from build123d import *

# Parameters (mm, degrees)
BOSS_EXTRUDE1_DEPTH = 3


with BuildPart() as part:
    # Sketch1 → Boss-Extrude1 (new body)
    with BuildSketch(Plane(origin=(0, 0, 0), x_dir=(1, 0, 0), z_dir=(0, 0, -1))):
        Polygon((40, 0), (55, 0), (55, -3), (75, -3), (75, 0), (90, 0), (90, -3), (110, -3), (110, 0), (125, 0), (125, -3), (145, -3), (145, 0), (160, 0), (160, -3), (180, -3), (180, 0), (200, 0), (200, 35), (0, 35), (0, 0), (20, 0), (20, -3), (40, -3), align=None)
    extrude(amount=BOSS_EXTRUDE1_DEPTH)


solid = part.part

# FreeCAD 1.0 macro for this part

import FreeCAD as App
import Part
import Sketcher

V = App.Vector
Q = App.Units.Quantity


def add_polygon(sketch, points):
    """Adds a closed chain of lines whose ends are joined by coincident constraints."""
    first, n = sketch.GeometryCount, len(points)
    for a, b in zip(points, points[1:] + points[:1]):
        sketch.addGeometry(Part.LineSegment(App.Vector(*a, 0), App.Vector(*b, 0)), False)
    for i in range(n):
        sketch.addConstraint(Sketcher.Constraint("Coincident", first + i, 2, first + (i + 1) % n, 1))

doc = App.newDocument("Part")
params = doc.addObject("Spreadsheet::Sheet", "Params")
for row, (alias, value) in enumerate([
    ("sketch1_width", "15 mm"),
    ("sketch1_width2", "20 mm"),
    ("sketch1_height", "3 mm"),
    ("sketch1_height2", "35 mm"),
    ("pad1_length", "3 mm"),
], start=1):
    params.set(f"A{row}", alias)
    params.set(f"B{row}", "=" + value)
    params.setAlias(f"B{row}", alias)

body = doc.addObject("PartDesign::Body", "Body")

# Sketch on XY plane
sketch1 = body.newObject("Sketcher::SketchObject", "Sketch")
sketch1.AttachmentSupport = (doc.getObject("XY_Plane"), [""])
sketch1.MapMode = "FlatFace"
add_polygon(sketch1, [(40, 0), (55, 0), (55, 3), (75, 3), (75, 0), (90, 0), (90, 3), (110, 3), (110, 0), (125, 0), (125, 3), (145, 3), (145, 0), (160, 0), (160, 3), (180, 3), (180, 0), (200, 0), (200, -35), (0, -35), (0, 0), (20, 0), (20, 3), (40, 3)])  # lines 0-23
sketch1.addConstraint([
    Sketcher.Constraint("Horizontal", 0),
    Sketcher.Constraint("Vertical", 1),
    Sketcher.Constraint("Horizontal", 2),
    Sketcher.Constraint("Vertical", 3),
    Sketcher.Constraint("Horizontal", 4),
    Sketcher.Constraint("Vertical", 5),
    Sketcher.Constraint("Horizontal", 6),
    Sketcher.Constraint("Vertical", 7),
    Sketcher.Constraint("Horizontal", 8),
    Sketcher.Constraint("Vertical", 9),
    Sketcher.Constraint("Horizontal", 10),
    Sketcher.Constraint("Vertical", 11),
    Sketcher.Constraint("Horizontal", 12),
    Sketcher.Constraint("Vertical", 13),
    Sketcher.Constraint("Horizontal", 14),
    Sketcher.Constraint("Vertical", 15),
    Sketcher.Constraint("Horizontal", 16),
    Sketcher.Constraint("Vertical", 17),
    Sketcher.Constraint("Horizontal", 18),
    Sketcher.Constraint("Vertical", 19),
    Sketcher.Constraint("Horizontal", 20),
    Sketcher.Constraint("Vertical", 21),
    Sketcher.Constraint("Horizontal", 22),
    Sketcher.Constraint("Vertical", 23),
    Sketcher.Constraint("Coincident", 19, 2, -1, 1),
    Sketcher.Constraint("PointOnObject", 0, 2, -1),
    Sketcher.Constraint("PointOnObject", 3, 2, -1),
    Sketcher.Constraint("PointOnObject", 7, 2, -1),
    Sketcher.Constraint("PointOnObject", 11, 2, -1),
    Sketcher.Constraint("PointOnObject", 15, 2, -1),
    Sketcher.Constraint("Horizontal", 2, 2, 5, 2),
    Sketcher.Constraint("Horizontal", 6, 2, 9, 2),
    Sketcher.Constraint("Horizontal", 10, 2, 13, 2),
    Sketcher.Constraint("Horizontal", 14, 2, 21, 2),
    Sketcher.Constraint("Equal", 0, 4),
    Sketcher.Constraint("Equal", 2, 6),
    Sketcher.Constraint("Equal", 4, 8),
    Sketcher.Constraint("Equal", 6, 10),
    Sketcher.Constraint("Equal", 8, 12),
    Sketcher.Constraint("Equal", 10, 14),
    Sketcher.Constraint("Equal", 14, 16),
    Sketcher.Constraint("Equal", 16, 20),
    Sketcher.Constraint("Equal", 20, 22),
    Sketcher.Constraint("DistanceX", 0, 1, 0, 2, Q("15 mm")),
    Sketcher.Constraint("DistanceX", 2, 1, 2, 2, Q("20 mm")),
    Sketcher.Constraint("DistanceY", 1, 1, 1, 2, Q("3 mm")),
    Sketcher.Constraint("DistanceY", 17, 2, 17, 1, Q("35 mm")),
])
sketch1.setExpression("Constraints[67]", "Params.sketch1_width")
sketch1.setExpression("Constraints[68]", "Params.sketch1_width2")
sketch1.setExpression("Constraints[69]", "Params.sketch1_height")
sketch1.setExpression("Constraints[70]", "Params.sketch1_height2")
pad1 = body.newObject("PartDesign::Pad", "Pad")
pad1.Profile = sketch1
pad1.setExpression("Length", "Params.pad1_length")
pad1.Reversed = True

doc.recompute()
